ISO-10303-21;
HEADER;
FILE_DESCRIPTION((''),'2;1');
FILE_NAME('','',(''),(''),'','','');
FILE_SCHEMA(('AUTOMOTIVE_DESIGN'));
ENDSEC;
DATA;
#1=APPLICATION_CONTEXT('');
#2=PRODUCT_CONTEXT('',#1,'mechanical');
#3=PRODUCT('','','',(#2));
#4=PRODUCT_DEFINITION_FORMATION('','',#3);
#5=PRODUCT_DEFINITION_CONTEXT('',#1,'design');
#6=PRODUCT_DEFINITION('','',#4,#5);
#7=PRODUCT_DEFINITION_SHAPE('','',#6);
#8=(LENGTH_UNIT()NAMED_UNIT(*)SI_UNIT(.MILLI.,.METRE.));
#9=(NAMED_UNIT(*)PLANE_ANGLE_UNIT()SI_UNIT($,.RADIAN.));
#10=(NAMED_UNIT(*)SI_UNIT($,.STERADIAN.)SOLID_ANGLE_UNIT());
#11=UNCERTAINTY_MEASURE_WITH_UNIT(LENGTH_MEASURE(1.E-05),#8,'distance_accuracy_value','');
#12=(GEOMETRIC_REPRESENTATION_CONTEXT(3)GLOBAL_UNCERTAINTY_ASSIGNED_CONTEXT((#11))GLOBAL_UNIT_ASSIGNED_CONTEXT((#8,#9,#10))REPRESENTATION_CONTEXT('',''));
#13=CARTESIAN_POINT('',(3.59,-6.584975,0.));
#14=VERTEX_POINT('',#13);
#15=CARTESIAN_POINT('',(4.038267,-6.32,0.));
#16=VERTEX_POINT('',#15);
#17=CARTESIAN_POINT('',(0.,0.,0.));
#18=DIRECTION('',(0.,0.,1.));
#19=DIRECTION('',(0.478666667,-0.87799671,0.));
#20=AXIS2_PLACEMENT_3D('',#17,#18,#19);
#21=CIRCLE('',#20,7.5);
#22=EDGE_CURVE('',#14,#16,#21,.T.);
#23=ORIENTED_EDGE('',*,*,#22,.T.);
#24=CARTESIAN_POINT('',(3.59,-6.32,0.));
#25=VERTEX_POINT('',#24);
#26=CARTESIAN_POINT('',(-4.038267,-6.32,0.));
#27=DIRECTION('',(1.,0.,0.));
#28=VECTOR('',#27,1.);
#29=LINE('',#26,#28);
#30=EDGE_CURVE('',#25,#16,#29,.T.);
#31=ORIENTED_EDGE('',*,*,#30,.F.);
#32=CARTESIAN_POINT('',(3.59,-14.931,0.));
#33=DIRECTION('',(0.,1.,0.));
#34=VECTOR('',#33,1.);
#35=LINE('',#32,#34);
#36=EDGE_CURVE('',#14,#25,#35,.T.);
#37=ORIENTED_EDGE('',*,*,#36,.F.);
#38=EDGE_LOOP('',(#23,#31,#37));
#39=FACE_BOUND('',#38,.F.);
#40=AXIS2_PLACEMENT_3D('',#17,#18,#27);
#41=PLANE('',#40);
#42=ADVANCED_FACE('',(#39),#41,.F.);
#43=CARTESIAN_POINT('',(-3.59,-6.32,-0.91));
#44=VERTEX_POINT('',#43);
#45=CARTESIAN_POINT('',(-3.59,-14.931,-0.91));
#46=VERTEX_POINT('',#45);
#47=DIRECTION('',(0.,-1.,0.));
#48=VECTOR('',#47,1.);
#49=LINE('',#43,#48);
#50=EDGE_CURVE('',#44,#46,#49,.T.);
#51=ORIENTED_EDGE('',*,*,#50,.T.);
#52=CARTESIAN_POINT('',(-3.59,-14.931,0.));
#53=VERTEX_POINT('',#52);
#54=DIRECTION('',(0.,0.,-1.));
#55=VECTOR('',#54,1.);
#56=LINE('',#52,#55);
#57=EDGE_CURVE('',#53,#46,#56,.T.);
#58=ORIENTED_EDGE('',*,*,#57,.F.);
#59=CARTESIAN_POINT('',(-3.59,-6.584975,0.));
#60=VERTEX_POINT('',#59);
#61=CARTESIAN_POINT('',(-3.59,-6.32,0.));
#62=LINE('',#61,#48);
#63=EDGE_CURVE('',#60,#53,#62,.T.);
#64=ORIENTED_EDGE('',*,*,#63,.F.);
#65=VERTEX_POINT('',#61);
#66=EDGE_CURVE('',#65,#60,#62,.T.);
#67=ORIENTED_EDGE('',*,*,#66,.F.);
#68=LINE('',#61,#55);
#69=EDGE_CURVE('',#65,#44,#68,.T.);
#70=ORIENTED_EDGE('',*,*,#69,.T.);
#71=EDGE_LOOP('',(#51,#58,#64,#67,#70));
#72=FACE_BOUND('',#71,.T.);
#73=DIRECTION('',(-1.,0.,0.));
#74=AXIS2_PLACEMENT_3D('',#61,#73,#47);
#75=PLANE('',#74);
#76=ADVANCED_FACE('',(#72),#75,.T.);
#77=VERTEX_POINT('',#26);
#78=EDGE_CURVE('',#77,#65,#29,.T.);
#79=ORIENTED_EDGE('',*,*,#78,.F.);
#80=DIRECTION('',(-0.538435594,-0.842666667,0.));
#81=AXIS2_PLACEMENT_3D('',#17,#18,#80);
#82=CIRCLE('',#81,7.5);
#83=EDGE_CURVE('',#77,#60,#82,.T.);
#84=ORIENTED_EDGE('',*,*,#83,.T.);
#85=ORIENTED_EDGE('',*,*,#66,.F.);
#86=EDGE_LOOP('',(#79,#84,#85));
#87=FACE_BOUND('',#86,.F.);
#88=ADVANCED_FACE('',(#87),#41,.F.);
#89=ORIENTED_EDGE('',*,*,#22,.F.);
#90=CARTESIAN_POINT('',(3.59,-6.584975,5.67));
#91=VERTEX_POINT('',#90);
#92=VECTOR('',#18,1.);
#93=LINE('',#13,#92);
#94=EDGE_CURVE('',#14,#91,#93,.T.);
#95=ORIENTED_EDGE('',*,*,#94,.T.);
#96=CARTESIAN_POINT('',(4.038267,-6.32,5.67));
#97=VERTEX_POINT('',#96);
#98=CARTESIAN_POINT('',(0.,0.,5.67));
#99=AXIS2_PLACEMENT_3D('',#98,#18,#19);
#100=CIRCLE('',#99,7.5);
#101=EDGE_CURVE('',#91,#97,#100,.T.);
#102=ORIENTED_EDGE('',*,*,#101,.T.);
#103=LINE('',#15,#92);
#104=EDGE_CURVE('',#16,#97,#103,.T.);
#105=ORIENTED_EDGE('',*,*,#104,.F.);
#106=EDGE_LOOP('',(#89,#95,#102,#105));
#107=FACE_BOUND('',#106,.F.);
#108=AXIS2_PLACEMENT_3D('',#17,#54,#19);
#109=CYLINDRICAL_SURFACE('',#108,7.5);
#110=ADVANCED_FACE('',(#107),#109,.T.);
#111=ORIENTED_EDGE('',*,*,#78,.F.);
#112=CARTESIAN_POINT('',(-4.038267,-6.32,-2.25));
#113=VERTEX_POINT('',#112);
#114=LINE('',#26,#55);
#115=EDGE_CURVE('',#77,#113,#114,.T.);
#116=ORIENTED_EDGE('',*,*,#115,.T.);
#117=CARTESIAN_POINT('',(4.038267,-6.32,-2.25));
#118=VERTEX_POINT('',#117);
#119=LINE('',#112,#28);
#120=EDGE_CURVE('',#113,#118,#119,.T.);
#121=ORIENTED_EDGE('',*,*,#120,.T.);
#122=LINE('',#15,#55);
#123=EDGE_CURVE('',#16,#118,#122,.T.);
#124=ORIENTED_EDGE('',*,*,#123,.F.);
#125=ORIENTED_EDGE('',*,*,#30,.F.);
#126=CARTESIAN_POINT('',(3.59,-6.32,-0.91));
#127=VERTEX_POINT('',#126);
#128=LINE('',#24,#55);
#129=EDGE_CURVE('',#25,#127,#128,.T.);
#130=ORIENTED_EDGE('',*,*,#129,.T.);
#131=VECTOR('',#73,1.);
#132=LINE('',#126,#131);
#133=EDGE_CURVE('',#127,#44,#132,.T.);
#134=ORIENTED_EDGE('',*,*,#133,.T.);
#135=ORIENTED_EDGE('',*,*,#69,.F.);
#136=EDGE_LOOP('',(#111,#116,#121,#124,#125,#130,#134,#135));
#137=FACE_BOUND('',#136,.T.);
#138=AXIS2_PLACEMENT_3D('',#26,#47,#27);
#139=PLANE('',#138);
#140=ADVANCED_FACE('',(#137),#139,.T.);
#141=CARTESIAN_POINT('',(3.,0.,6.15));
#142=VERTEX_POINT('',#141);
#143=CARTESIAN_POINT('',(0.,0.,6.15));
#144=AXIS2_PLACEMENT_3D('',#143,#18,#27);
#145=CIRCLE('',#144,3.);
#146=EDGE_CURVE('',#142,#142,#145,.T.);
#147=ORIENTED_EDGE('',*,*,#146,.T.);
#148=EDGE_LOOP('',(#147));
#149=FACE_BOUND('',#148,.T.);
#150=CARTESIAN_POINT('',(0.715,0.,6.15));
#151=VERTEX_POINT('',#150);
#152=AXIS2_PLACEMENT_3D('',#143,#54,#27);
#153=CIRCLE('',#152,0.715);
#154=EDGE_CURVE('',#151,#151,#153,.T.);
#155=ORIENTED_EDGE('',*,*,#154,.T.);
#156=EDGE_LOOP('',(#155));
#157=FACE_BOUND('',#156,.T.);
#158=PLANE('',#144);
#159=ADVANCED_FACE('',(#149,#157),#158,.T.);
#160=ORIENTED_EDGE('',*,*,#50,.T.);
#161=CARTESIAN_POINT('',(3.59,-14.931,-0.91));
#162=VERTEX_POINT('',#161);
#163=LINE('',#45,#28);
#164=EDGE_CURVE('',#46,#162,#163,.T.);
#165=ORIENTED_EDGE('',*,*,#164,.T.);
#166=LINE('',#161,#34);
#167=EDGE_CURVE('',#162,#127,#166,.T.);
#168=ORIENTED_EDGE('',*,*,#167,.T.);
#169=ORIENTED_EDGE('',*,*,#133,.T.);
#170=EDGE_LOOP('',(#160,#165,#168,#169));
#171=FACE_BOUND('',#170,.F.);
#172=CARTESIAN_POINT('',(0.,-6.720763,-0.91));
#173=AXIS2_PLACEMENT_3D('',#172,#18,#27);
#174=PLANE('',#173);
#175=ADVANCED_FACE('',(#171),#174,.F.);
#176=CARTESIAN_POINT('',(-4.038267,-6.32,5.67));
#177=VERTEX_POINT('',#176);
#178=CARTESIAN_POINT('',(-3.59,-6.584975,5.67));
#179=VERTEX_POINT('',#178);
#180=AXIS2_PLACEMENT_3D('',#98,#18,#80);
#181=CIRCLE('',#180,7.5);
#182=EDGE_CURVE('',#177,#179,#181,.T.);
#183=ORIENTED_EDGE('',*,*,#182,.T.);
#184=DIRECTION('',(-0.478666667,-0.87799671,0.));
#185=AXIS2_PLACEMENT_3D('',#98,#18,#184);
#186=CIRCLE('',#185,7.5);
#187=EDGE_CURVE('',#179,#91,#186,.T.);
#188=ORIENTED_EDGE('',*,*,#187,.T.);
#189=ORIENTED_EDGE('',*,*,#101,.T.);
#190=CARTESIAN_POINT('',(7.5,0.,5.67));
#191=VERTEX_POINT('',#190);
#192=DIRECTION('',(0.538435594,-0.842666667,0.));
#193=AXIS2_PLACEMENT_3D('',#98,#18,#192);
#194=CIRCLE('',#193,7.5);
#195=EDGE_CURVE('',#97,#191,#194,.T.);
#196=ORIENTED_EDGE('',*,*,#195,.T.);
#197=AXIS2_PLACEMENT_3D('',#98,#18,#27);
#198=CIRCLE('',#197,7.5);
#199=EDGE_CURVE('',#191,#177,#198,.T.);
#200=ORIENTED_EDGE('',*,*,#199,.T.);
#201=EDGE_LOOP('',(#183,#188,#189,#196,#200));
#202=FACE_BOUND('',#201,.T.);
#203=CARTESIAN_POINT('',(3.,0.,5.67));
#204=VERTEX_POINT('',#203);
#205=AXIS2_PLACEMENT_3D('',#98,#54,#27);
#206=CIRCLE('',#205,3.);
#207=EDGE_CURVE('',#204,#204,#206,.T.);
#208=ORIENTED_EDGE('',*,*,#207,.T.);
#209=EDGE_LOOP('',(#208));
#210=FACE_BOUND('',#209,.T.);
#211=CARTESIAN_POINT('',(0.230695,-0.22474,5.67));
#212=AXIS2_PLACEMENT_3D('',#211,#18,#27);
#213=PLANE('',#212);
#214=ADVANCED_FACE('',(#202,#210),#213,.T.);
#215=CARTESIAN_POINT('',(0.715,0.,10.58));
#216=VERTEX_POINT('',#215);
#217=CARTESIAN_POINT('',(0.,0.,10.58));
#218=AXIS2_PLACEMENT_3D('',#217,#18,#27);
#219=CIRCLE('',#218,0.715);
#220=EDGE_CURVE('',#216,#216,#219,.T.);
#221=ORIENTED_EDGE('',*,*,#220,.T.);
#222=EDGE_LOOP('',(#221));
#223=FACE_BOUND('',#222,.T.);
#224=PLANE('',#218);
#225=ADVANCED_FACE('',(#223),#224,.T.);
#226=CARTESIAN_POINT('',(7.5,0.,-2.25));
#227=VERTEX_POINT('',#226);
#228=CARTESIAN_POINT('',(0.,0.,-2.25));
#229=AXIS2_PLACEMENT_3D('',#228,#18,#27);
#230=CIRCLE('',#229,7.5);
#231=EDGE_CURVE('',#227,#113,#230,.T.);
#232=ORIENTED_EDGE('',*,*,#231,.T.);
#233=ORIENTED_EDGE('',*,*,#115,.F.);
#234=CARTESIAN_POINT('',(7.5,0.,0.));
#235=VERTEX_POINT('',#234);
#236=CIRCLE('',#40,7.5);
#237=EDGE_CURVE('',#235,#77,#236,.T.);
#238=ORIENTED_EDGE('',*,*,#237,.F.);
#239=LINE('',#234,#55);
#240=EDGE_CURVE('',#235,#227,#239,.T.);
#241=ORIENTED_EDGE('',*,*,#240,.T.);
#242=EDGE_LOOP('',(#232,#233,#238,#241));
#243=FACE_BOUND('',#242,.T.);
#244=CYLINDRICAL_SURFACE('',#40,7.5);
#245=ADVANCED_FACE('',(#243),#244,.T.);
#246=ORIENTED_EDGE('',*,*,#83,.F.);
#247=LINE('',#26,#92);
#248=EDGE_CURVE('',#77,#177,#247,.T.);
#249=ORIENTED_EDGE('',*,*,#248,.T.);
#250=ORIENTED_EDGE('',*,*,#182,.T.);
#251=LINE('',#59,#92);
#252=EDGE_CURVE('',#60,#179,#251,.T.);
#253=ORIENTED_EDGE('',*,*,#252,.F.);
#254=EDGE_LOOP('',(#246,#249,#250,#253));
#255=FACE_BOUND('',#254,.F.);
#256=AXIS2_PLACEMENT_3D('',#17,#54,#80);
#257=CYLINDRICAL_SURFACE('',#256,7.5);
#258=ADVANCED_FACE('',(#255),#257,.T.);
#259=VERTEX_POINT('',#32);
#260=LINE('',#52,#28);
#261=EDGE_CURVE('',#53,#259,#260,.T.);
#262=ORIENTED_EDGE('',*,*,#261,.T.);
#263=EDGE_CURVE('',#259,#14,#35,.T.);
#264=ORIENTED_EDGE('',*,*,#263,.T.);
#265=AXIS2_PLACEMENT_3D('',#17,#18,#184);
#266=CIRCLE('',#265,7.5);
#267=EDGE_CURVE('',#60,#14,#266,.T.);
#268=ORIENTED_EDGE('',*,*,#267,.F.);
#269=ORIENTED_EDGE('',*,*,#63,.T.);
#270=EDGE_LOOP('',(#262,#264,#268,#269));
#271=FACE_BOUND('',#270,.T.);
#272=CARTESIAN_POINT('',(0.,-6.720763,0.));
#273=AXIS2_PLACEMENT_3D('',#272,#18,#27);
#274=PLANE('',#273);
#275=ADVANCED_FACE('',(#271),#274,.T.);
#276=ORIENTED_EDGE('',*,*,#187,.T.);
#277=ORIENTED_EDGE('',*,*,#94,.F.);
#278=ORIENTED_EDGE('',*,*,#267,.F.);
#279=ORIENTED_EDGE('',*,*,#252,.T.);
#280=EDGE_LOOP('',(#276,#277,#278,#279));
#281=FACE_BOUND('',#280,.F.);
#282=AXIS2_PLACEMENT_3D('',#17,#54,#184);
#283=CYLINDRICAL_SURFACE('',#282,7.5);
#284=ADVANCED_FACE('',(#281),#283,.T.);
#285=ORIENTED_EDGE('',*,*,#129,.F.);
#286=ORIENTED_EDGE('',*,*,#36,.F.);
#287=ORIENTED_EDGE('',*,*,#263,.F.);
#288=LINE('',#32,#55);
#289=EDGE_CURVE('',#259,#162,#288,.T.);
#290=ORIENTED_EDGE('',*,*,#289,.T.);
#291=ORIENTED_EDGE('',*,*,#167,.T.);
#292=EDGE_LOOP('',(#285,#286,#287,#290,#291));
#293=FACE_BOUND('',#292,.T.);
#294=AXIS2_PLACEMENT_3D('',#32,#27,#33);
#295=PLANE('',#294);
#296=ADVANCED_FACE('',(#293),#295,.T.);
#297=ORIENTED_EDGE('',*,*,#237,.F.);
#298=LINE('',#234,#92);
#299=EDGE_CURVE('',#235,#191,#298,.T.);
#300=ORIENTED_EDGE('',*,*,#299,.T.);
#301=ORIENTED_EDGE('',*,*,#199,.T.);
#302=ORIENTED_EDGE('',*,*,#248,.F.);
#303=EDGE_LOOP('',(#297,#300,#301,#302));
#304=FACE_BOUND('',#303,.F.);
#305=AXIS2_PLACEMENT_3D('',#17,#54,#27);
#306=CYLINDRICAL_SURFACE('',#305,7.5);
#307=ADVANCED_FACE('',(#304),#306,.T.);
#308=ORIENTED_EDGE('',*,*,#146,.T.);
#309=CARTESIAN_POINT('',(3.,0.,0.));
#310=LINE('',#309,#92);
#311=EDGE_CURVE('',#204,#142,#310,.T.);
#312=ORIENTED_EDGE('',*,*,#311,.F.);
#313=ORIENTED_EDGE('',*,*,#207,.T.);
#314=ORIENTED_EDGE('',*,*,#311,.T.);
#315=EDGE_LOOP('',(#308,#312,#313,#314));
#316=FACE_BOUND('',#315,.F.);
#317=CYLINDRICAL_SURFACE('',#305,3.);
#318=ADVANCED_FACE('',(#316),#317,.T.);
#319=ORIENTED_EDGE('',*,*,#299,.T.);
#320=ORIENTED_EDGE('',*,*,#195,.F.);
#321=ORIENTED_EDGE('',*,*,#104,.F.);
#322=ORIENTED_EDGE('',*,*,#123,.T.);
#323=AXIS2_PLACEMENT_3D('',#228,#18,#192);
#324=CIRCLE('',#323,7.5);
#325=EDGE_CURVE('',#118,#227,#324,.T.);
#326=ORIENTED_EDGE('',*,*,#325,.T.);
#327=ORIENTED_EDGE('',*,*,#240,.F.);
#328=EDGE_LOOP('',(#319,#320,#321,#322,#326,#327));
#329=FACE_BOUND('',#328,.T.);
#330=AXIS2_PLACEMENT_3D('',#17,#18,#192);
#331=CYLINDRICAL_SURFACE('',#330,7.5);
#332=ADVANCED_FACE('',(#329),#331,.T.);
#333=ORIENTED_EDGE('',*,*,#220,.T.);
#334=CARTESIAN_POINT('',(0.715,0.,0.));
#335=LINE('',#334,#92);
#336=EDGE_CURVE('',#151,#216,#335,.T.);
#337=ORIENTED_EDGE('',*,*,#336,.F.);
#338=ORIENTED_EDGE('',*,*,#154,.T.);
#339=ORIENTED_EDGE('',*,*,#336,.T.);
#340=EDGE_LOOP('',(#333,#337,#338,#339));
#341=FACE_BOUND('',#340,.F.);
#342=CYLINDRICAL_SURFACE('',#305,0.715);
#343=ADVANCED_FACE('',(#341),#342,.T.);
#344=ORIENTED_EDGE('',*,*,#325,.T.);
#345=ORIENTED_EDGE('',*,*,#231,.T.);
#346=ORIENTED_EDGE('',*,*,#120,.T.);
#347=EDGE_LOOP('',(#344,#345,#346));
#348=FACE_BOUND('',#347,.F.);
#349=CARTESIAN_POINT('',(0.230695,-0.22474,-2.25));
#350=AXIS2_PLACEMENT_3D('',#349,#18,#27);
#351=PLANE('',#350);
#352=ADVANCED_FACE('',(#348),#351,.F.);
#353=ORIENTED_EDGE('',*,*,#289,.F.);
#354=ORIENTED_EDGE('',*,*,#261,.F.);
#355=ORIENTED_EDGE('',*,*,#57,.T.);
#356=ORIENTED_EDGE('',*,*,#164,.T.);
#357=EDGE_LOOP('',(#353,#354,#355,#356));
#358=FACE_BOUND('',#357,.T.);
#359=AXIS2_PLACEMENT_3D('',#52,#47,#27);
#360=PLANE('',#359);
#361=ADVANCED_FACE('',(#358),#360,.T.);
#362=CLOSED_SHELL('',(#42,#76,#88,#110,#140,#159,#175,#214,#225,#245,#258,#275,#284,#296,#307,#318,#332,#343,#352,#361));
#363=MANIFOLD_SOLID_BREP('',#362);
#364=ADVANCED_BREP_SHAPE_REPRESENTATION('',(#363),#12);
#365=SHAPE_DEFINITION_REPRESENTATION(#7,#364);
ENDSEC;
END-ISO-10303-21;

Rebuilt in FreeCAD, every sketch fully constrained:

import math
import FreeCAD as App
import Part
import Sketcher
from FreeCAD import Vector


def add_polygon(sketch, points):
    """Adds a closed chain of lines whose ends are joined by coincident constraints."""
    first, n = sketch.GeometryCount, len(points)
    for a, b in zip(points, points[1:] + points[:1]):
        sketch.addGeometry(Part.LineSegment(App.Vector(*a, 0), App.Vector(*b, 0)), False)
    for i in range(n):
        sketch.addConstraint(Sketcher.Constraint("Coincident", first + i, 2, first + (i + 1) % n, 1))

doc = App.newDocument("Part")
body = doc.addObject("PartDesign::Body", "Body")

sketch1 = doc.addObject("Sketcher::SketchObject", "Sketch")
body.addObject(sketch1)
sketch1.AttachmentSupport = (doc.XY_Plane, [""])
sketch1.MapMode = "FlatFace"
sketch1.addGeometry(Part.ArcOfCircle(Part.Circle(Vector(0, 0, 0), Vector(0, 0, 1), 7.5), math.radians(-57.422794), math.radians(0)), False)
sketch1.addGeometry(Part.ArcOfCircle(Part.Circle(Vector(0, 0, 0), Vector(0, 0, 1), 7.5), math.radians(0), math.radians(237.422794)), False)
sketch1.addGeometry(Part.ArcOfCircle(Part.Circle(Vector(0, 0, 0), Vector(0, 0, 1), 7.5), math.radians(-122.577206), math.radians(-118.598356)), False)
sketch1.addGeometry(Part.ArcOfCircle(Part.Circle(Vector(0, 0, 0), Vector(0, 0, 1), 7.5), math.radians(-118.598356), math.radians(-61.401644)), False)
sketch1.addGeometry(Part.ArcOfCircle(Part.Circle(Vector(0, 0, 0), Vector(0, 0, 1), 7.5), math.radians(-61.401644), math.radians(-57.422794)), False)
sketch1.addConstraint(Sketcher.Constraint("Tangent", 0, 2, 1, 1))
sketch1.addConstraint(Sketcher.Constraint("Tangent", 1, 2, 2, 1))
sketch1.addConstraint(Sketcher.Constraint("Tangent", 2, 2, 3, 1))
sketch1.addConstraint(Sketcher.Constraint("Tangent", 3, 2, 4, 1))
sketch1.addConstraint(Sketcher.Constraint("Tangent", 4, 2, 0, 1))
sketch1.addConstraint(Sketcher.Constraint("Coincident", 0, 3, -1, 1))
sketch1.addConstraint(Sketcher.Constraint("Coincident", 2, 3, -1, 1))
sketch1.addConstraint(Sketcher.Constraint("PointOnObject", 0, 2, -1))
sketch1.addConstraint(Sketcher.Constraint("Horizontal", 2, 2, 3, 2))
sketch1.addConstraint(Sketcher.Constraint("Horizontal", 1, 2, 4, 2))
sketch1.addConstraint(Sketcher.Constraint("Radius", 0, 7.5))
sketch1.addConstraint(Sketcher.Constraint("DistanceY", 1, 2, -1, 1, 6.32))
sketch1.addConstraint(Sketcher.Constraint("DistanceX", 2, 2, -1, 1, 3.59))
pad1 = doc.addObject("PartDesign::Pad", "Pad")
body.addObject(pad1)
pad1.Profile = sketch1
pad1.Length = 5.67

sketch2 = doc.addObject("Sketcher::SketchObject", "Sketch001")
body.addObject(sketch2)
sketch2.AttachmentSupport = (doc.XY_Plane, [""])
sketch2.MapMode = "FlatFace"
sketch2.addGeometry(Part.Circle(Vector(0, 0, 0), Vector(0, 0, 1), 3), False)
sketch2.addConstraint(Sketcher.Constraint("Coincident", 0, 3, -1, 1))
sketch2.addConstraint(Sketcher.Constraint("Diameter", 0, 6.0))
pad2 = doc.addObject("PartDesign::Pad", "Pad001")
body.addObject(pad2)
pad2.Profile = sketch2
pad2.Length = 6.15

sketch3 = doc.addObject("Sketcher::SketchObject", "Sketch002")
body.addObject(sketch3)
sketch3.AttachmentSupport = (doc.XY_Plane, [""])
sketch3.MapMode = "FlatFace"
sketch3.addGeometry(Part.Circle(Vector(0, 0, 0), Vector(0, 0, 1), 0.715), False)
sketch3.addConstraint(Sketcher.Constraint("Coincident", 0, 3, -1, 1))
sketch3.addConstraint(Sketcher.Constraint("Diameter", 0, 1.43))
pad3 = doc.addObject("PartDesign::Pad", "Pad002")
body.addObject(pad3)
pad3.Profile = sketch3
pad3.Length = 10.58

sketch4 = doc.addObject("Sketcher::SketchObject", "Sketch003")
body.addObject(sketch4)
sketch4.AttachmentSupport = (doc.XY_Plane, [""])
sketch4.MapMode = "FlatFace"
sketch4.addGeometry(Part.ArcOfCircle(Part.Circle(Vector(0, 0, 0), Vector(0, 0, 1), 7.5), math.radians(-57.422794), math.radians(0)), False)
sketch4.addGeometry(Part.ArcOfCircle(Part.Circle(Vector(0, 0, 0), Vector(0, 0, 1), 7.5), math.radians(0), math.radians(237.422794)), False)
sketch4.addGeometry(Part.LineSegment(Vector(-4.038267, -6.32, 0), Vector(4.038267, -6.32, 0)), False)
sketch4.addConstraint(Sketcher.Constraint("Tangent", 0, 2, 1, 1))
sketch4.addConstraint(Sketcher.Constraint("Coincident", 1, 2, 2, 1))
sketch4.addConstraint(Sketcher.Constraint("Coincident", 2, 2, 0, 1))
sketch4.addConstraint(Sketcher.Constraint("Horizontal", 2))
sketch4.addConstraint(Sketcher.Constraint("Coincident", 0, 3, -1, 1))
sketch4.addConstraint(Sketcher.Constraint("Equal", 0, 1))
sketch4.addConstraint(Sketcher.Constraint("PointOnObject", 0, 2, -1))
sketch4.addConstraint(Sketcher.Constraint("Radius", 0, 7.5))
sketch4.addConstraint(Sketcher.Constraint("DistanceY", 1, 2, -1, 1, 6.32))
pad4 = doc.addObject("PartDesign::Pad", "Pad003")
body.addObject(pad4)
pad4.Profile = sketch4
pad4.Length = 2.25
pad4.Reversed = True

sketch5 = doc.addObject("Sketcher::SketchObject", "Sketch004")
body.addObject(sketch5)
sketch5.AttachmentSupport = (doc.XY_Plane, [""])
sketch5.MapMode = "FlatFace"
add_polygon(sketch5, [(-3.59, -6.32), (-3.59, -14.931), (3.59, -14.931), (3.59, -6.32)])
sketch5.addConstraint(Sketcher.Constraint("Vertical", 0))
sketch5.addConstraint(Sketcher.Constraint("Horizontal", 1))
sketch5.addConstraint(Sketcher.Constraint("Vertical", 2))
sketch5.addConstraint(Sketcher.Constraint("Horizontal", 3))
sketch5.addConstraint(Sketcher.Constraint("DistanceX", 1, 1, 1, 2, 7.18))
sketch5.addConstraint(Sketcher.Constraint("DistanceY", 0, 2, 0, 1, 8.611))
sketch5.addConstraint(Sketcher.Constraint("DistanceX", 0, 2, -1, 1, 3.59))
sketch5.addConstraint(Sketcher.Constraint("DistanceY", 2, 2, -1, 1, 6.32))
pad5 = doc.addObject("PartDesign::Pad", "Pad004")
body.addObject(pad5)
pad5.Profile = sketch5
pad5.Length = 0.91
pad5.Reversed = True

doc.recompute()
